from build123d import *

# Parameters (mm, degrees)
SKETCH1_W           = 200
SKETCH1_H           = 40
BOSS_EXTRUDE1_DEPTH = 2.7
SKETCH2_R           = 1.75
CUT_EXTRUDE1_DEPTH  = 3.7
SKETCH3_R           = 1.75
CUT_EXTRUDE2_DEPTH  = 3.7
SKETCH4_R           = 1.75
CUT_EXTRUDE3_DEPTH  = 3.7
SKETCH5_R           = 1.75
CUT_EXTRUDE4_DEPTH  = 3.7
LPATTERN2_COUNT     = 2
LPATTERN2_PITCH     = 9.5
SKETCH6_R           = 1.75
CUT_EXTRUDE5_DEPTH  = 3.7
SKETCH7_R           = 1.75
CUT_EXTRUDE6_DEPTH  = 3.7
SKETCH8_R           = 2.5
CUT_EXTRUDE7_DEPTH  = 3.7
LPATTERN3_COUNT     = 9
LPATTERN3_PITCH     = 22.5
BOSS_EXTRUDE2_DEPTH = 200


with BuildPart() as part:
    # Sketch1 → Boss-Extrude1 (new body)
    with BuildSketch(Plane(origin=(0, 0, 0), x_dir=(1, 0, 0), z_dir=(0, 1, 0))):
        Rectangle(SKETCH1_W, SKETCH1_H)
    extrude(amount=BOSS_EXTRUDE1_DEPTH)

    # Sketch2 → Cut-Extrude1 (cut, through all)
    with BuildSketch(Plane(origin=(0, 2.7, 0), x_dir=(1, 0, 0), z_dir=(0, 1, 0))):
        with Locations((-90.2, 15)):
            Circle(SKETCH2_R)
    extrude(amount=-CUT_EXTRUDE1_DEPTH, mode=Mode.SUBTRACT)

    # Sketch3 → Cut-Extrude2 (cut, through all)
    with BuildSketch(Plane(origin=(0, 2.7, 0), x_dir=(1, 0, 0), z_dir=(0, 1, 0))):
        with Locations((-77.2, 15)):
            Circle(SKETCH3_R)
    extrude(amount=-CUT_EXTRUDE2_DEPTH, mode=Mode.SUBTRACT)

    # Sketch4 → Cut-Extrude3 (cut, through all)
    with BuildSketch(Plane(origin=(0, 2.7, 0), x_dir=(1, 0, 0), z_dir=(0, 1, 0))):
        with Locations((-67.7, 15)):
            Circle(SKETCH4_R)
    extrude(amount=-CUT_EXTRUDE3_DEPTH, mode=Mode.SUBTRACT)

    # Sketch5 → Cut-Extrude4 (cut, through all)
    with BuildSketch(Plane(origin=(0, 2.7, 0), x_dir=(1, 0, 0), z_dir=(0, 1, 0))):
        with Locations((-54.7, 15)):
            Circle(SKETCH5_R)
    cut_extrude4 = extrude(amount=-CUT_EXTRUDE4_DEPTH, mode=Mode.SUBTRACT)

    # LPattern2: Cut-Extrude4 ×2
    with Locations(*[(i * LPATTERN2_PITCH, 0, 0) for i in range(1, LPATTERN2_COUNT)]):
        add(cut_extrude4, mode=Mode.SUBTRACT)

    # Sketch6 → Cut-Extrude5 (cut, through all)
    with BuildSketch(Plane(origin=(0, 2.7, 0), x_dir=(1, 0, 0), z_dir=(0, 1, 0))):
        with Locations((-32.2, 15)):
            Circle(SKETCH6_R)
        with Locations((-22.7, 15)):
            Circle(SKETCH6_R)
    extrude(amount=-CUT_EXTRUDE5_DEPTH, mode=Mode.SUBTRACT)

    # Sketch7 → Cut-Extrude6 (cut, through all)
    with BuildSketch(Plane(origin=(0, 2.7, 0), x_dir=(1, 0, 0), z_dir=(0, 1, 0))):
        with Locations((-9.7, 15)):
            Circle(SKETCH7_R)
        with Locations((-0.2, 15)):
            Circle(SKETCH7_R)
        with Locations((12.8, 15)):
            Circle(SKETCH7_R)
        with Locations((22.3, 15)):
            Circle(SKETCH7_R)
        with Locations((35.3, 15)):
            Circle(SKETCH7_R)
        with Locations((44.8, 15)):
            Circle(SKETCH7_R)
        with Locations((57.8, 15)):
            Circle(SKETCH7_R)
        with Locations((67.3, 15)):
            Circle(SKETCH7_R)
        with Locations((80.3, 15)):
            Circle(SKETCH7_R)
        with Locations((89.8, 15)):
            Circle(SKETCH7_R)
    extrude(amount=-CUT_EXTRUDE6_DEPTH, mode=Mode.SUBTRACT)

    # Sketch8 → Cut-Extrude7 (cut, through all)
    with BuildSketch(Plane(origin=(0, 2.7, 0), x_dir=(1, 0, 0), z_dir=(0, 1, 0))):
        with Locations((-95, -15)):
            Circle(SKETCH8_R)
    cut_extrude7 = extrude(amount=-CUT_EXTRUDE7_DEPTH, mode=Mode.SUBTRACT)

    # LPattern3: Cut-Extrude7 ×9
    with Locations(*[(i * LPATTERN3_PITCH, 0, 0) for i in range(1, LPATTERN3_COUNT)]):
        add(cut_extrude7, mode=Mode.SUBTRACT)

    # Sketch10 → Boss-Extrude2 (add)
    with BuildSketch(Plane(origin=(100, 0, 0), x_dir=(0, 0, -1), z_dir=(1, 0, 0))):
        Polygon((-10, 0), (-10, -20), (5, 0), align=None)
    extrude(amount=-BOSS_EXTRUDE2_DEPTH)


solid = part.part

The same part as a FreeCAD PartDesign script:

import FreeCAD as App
import Part
import Sketcher
from FreeCAD import Vector
Q = App.Units.Quantity

doc = App.newDocument("Part")
body = doc.addObject("PartDesign::Body", "Body")

sketch1 = body.newObject("Sketcher::SketchObject", "Sketch")
sketch1.AttachmentSupport = (doc.getObject("XZ_Plane"), [""])
sketch1.MapMode = "FlatFace"
sketch1.addGeometry(Part.LineSegment(Vector(-100, -20, 0), Vector(-100, 20, 0)), False)
sketch1.addGeometry(Part.LineSegment(Vector(-100, 20, 0), Vector(100, 20, 0)), False)
sketch1.addGeometry(Part.LineSegment(Vector(100, 20, 0), Vector(100, -20, 0)), False)
sketch1.addGeometry(Part.LineSegment(Vector(100, -20, 0), Vector(-100, -20, 0)), False)
sketch1.addConstraint(Sketcher.Constraint("Coincident", 0, 2, 1, 1))
sketch1.addConstraint(Sketcher.Constraint("Coincident", 1, 2, 2, 1))
sketch1.addConstraint(Sketcher.Constraint("Coincident", 2, 2, 3, 1))
sketch1.addConstraint(Sketcher.Constraint("Coincident", 3, 2, 0, 1))
sketch1.addConstraint(Sketcher.Constraint("Vertical", 0))
sketch1.addConstraint(Sketcher.Constraint("Horizontal", 1))
sketch1.addConstraint(Sketcher.Constraint("Vertical", 2))
sketch1.addConstraint(Sketcher.Constraint("Horizontal", 3))
sketch1.addConstraint(Sketcher.Constraint("Symmetric", 0, 2, 2, 2, -1, 1))
sketch1.addConstraint(Sketcher.Constraint("DistanceX", 1, 1, 1, 2, Q("200 mm")))
sketch1.addConstraint(Sketcher.Constraint("DistanceY", 0, 1, 0, 2, Q("40 mm")))
pad1 = body.newObject("PartDesign::Pad", "Pad")
pad1.Profile = sketch1
pad1.Length = 2.7
pad1.Reversed = True

sketch2 = body.newObject("Sketcher::SketchObject", "Sketch001")
sketch2.AttachmentSupport = (doc.getObject("XZ_Plane"), [""])
sketch2.MapMode = "FlatFace"
sketch2.AttachmentOffset = App.Placement(Vector(0, 0, -2.7), App.Rotation())
sketch2.addGeometry(Part.Circle(Vector(-90.2, -15, 0), Vector(0, 0, 1), 1.8), False)
sketch2.addConstraint(Sketcher.Constraint("Diameter", 0, Q("3.5 mm")))
sketch2.addConstraint(Sketcher.Constraint("DistanceY", 0, 3, -1, 1, Q("15 mm")))
sketch2.addConstraint(Sketcher.Constraint("DistanceX", 0, 3, -1, 1, Q("90.2 mm")))
pocket1 = body.newObject("PartDesign::Pocket", "Pocket")
pocket1.Profile = sketch2
pocket1.Type = "ThroughAll"
pocket1.Reversed = True

sketch3 = body.newObject("Sketcher::SketchObject", "Sketch002")
sketch3.AttachmentSupport = (doc.getObject("XZ_Plane"), [""])
sketch3.MapMode = "FlatFace"
sketch3.AttachmentOffset = App.Placement(Vector(0, 0, -2.7), App.Rotation())
sketch3.addGeometry(Part.Circle(Vector(-77.2, -15, 0), Vector(0, 0, 1), 1.8), False)
sketch3.addConstraint(Sketcher.Constraint("Diameter", 0, Q("3.5 mm")))
sketch3.addConstraint(Sketcher.Constraint("DistanceY", 0, 3, -1, 1, Q("15 mm")))
sketch3.addConstraint(Sketcher.Constraint("DistanceX", 0, 3, -1, 1, Q("77.2 mm")))
pocket2 = body.newObject("PartDesign::Pocket", "Pocket001")
pocket2.Profile = sketch3
pocket2.Type = "ThroughAll"
pocket2.Reversed = True

sketch4 = body.newObject("Sketcher::SketchObject", "Sketch003")
sketch4.AttachmentSupport = (doc.getObject("XZ_Plane"), [""])
sketch4.MapMode = "FlatFace"
sketch4.AttachmentOffset = App.Placement(Vector(0, 0, -2.7), App.Rotation())
sketch4.addGeometry(Part.Circle(Vector(-67.7, -15, 0), Vector(0, 0, 1), 1.8), False)
sketch4.addConstraint(Sketcher.Constraint("Diameter", 0, Q("3.5 mm")))
sketch4.addConstraint(Sketcher.Constraint("DistanceY", 0, 3, -1, 1, Q("15 mm")))
sketch4.addConstraint(Sketcher.Constraint("DistanceX", 0, 3, -1, 1, Q("67.7 mm")))
pocket3 = body.newObject("PartDesign::Pocket", "Pocket002")
pocket3.Profile = sketch4
pocket3.Type = "ThroughAll"
pocket3.Reversed = True

sketch5 = body.newObject("Sketcher::SketchObject", "Sketch004")
sketch5.AttachmentSupport = (doc.getObject("XZ_Plane"), [""])
sketch5.MapMode = "FlatFace"
sketch5.AttachmentOffset = App.Placement(Vector(0, 0, -2.7), App.Rotation())
sketch5.addGeometry(Part.Circle(Vector(-54.7, -15, 0), Vector(0, 0, 1), 1.8), False)
sketch5.addConstraint(Sketcher.Constraint("Diameter", 0, Q("3.5 mm")))
sketch5.addConstraint(Sketcher.Constraint("DistanceY", 0, 3, -1, 1, Q("15 mm")))
sketch5.addConstraint(Sketcher.Constraint("DistanceX", 0, 3, -1, 1, Q("54.7 mm")))
pocket4 = body.newObject("PartDesign::Pocket", "Pocket003")
pocket4.Profile = sketch5
pocket4.Type = "ThroughAll"
pocket4.Reversed = True
doc.recompute()

linearpattern = body.newObject("PartDesign::LinearPattern", "LinearPattern")
linearpattern.Originals = [pocket4]
linearpattern.Direction = (doc.getObject("X_Axis"), [""])
linearpattern.Mode = "offset"
linearpattern.Offset = 9.5
linearpattern.Occurrences = 2
body.Tip = linearpattern

sketch6 = body.newObject("Sketcher::SketchObject", "Sketch005")
sketch6.AttachmentSupport = (doc.getObject("XZ_Plane"), [""])
sketch6.MapMode = "FlatFace"
sketch6.AttachmentOffset = App.Placement(Vector(0, 0, -2.7), App.Rotation())
sketch6.addGeometry(Part.Circle(Vector(-32.2, -15, 0), Vector(0, 0, 1), 1.8), False)
sketch6.addGeometry(Part.Circle(Vector(-22.7, -15, 0), Vector(0, 0, 1), 1.8), False)
sketch6.addConstraint(Sketcher.Constraint("Equal", 0, 1))
sketch6.addConstraint(Sketcher.Constraint("Horizontal", 0, 3, 1, 3))
sketch6.addConstraint(Sketcher.Constraint("Diameter", 0, Q("3.5 mm")))
sketch6.addConstraint(Sketcher.Constraint("DistanceY", 0, 3, -1, 1, Q("15 mm")))
sketch6.addConstraint(Sketcher.Constraint("DistanceX", 0, 3, -1, 1, Q("32.2 mm")))
sketch6.addConstraint(Sketcher.Constraint("DistanceX", 1, 3, -1, 1, Q("22.7 mm")))
pocket5 = body.newObject("PartDesign::Pocket", "Pocket004")
pocket5.Profile = sketch6
pocket5.Type = "ThroughAll"
pocket5.Reversed = True

sketch7 = body.newObject("Sketcher::SketchObject", "Sketch006")
sketch7.AttachmentSupport = (doc.getObject("XZ_Plane"), [""])
sketch7.MapMode = "FlatFace"
sketch7.AttachmentOffset = App.Placement(Vector(0, 0, -2.7), App.Rotation())
sketch7.addGeometry(Part.Circle(Vector(-9.7, -15, 0), Vector(0, 0, 1), 1.8), False)
sketch7.addGeometry(Part.Circle(Vector(-0.2, -15, 0), Vector(0, 0, 1), 1.8), False)
sketch7.addGeometry(Part.Circle(Vector(12.8, -15, 0), Vector(0, 0, 1), 1.8), False)
sketch7.addGeometry(Part.Circle(Vector(22.3, -15, 0), Vector(0, 0, 1), 1.8), False)
sketch7.addGeometry(Part.Circle(Vector(35.3, -15, 0), Vector(0, 0, 1), 1.8), False)
sketch7.addGeometry(Part.Circle(Vector(44.8, -15, 0), Vector(0, 0, 1), 1.8), False)
sketch7.addGeometry(Part.Circle(Vector(57.8, -15, 0), Vector(0, 0, 1), 1.8), False)
sketch7.addGeometry(Part.Circle(Vector(67.3, -15, 0), Vector(0, 0, 1), 1.8), False)
sketch7.addGeometry(Part.Circle(Vector(80.3, -15, 0), Vector(0, 0, 1), 1.8), False)
sketch7.addGeometry(Part.Circle(Vector(89.8, -15, 0), Vector(0, 0, 1), 1.8), False)
sketch7.addConstraint(Sketcher.Constraint("Equal", 0, 1))
sketch7.addConstraint(Sketcher.Constraint("Equal", 1, 2))
sketch7.addConstraint(Sketcher.Constraint("Equal", 2, 3))
sketch7.addConstraint(Sketcher.Constraint("Equal", 3, 4))
sketch7.addConstraint(Sketcher.Constraint("Equal", 4, 5))
sketch7.addConstraint(Sketcher.Constraint("Equal", 5, 6))
sketch7.addConstraint(Sketcher.Constraint("Equal", 6, 7))
sketch7.addConstraint(Sketcher.Constraint("Equal", 7, 8))
sketch7.addConstraint(Sketcher.Constraint("Equal", 8, 9))
sketch7.addConstraint(Sketcher.Constraint("Horizontal", 0, 3, 1, 3))
sketch7.addConstraint(Sketcher.Constraint("Horizontal", 1, 3, 2, 3))
sketch7.addConstraint(Sketcher.Constraint("Horizontal", 2, 3, 3, 3))
sketch7.addConstraint(Sketcher.Constraint("Horizontal", 3, 3, 4, 3))
sketch7.addConstraint(Sketcher.Constraint("Horizontal", 4, 3, 5, 3))
sketch7.addConstraint(Sketcher.Constraint("Horizontal", 5, 3, 6, 3))
sketch7.addConstraint(Sketcher.Constraint("Horizontal", 6, 3, 7, 3))
sketch7.addConstraint(Sketcher.Constraint("Horizontal", 7, 3, 8, 3))
sketch7.addConstraint(Sketcher.Constraint("Horizontal", 8, 3, 9, 3))
sketch7.addConstraint(Sketcher.Constraint("Diameter", 0, Q("3.5 mm")))
sketch7.addConstraint(Sketcher.Constraint("DistanceY", 0, 3, -1, 1, Q("15 mm")))
sketch7.addConstraint(Sketcher.Constraint("DistanceX", 1, 3, 2, 3, Q("13 mm")))
sketch7.addConstraint(Sketcher.Constraint("DistanceX", 0, 3, 3, 3, Q("32 mm")))
sketch7.addConstraint(Sketcher.Constraint("DistanceX", 3, 3, 4, 3, Q("13 mm")))
sketch7.addConstraint(Sketcher.Constraint("DistanceX", 2, 3, 5, 3, Q("32 mm")))
sketch7.addConstraint(Sketcher.Constraint("DistanceX", 5, 3, 6, 3, Q("13 mm")))
sketch7.addConstraint(Sketcher.Constraint("DistanceX", 4, 3, 7, 3, Q("32 mm")))
sketch7.addConstraint(Sketcher.Constraint("DistanceX", 7, 3, 8, 3, Q("13 mm")))
sketch7.addConstraint(Sketcher.Constraint("DistanceX", 6, 3, 9, 3, Q("32 mm")))
sketch7.addConstraint(Sketcher.Constraint("DistanceX", 0, 3, -1, 1, Q("9.7 mm")))
sketch7.addConstraint(Sketcher.Constraint("DistanceX", 1, 3, -1, 1, Q("0.2 mm")))
pocket6 = body.newObject("PartDesign::Pocket", "Pocket005")
pocket6.Profile = sketch7
pocket6.Type = "ThroughAll"
pocket6.Reversed = True

sketch8 = body.newObject("Sketcher::SketchObject", "Sketch007")
sketch8.AttachmentSupport = (doc.getObject("XZ_Plane"), [""])
sketch8.MapMode = "FlatFace"
sketch8.AttachmentOffset = App.Placement(Vector(0, 0, -2.7), App.Rotation())
sketch8.addGeometry(Part.Circle(Vector(-95, 15, 0), Vector(0, 0, 1), 2.5), False)
sketch8.addConstraint(Sketcher.Constraint("Diameter", 0, Q("5 mm")))
sketch8.addConstraint(Sketcher.Constraint("DistanceX", 0, 3, -1, 1, Q("95 mm")))
sketch8.addConstraint(Sketcher.Constraint("DistanceY", -1, 1, 0, 3, Q("15 mm")))
pocket7 = body.newObject("PartDesign::Pocket", "Pocket006")
pocket7.Profile = sketch8
pocket7.Type = "ThroughAll"
pocket7.Reversed = True
doc.recompute()

linearpattern2 = body.newObject("PartDesign::LinearPattern", "LinearPattern001")
linearpattern2.Originals = [pocket7]
linearpattern2.Direction = (doc.getObject("X_Axis"), [""])
linearpattern2.Mode = "offset"
linearpattern2.Offset = 22.5
linearpattern2.Occurrences = 9
body.Tip = linearpattern2

sketch9 = body.newObject("Sketcher::SketchObject", "Sketch008")
sketch9.AttachmentSupport = (doc.getObject("YZ_Plane"), [""])
sketch9.MapMode = "FlatFace"
sketch9.AttachmentOffset = App.Placement(Vector(0, 0, 100), App.Rotation())
sketch9.addGeometry(Part.LineSegment(Vector(0, 10, 0), Vector(-20, 10, 0)), False)
sketch9.addGeometry(Part.LineSegment(Vector(-20, 10, 0), Vector(0, -5, 0)), False)
sketch9.addGeometry(Part.LineSegment(Vector(0, -5, 0), Vector(0, 10, 0)), False)
sketch9.addConstraint(Sketcher.Constraint("Coincident", 0, 2, 1, 1))
sketch9.addConstraint(Sketcher.Constraint("Coincident", 1, 2, 2, 1))
sketch9.addConstraint(Sketcher.Constraint("Coincident", 2, 2, 0, 1))
sketch9.addConstraint(Sketcher.Constraint("Horizontal", 0))
sketch9.addConstraint(Sketcher.Constraint("Vertical", 2))
sketch9.addConstraint(Sketcher.Constraint("PointOnObject", 1, 2, -2))
sketch9.addConstraint(Sketcher.Constraint("DistanceX", 0, 2, 0, 1, Q("20 mm")))
sketch9.addConstraint(Sketcher.Constraint("DistanceY", 2, 1, 2, 2, Q("15 mm")))
sketch9.addConstraint(Sketcher.Constraint("DistanceY", -1, 1, 0, 2, Q("10 mm")))
pad2 = body.newObject("PartDesign::Pad", "Pad001")
pad2.Profile = sketch9
pad2.Length = 200
pad2.Reversed = True

doc.recompute()
